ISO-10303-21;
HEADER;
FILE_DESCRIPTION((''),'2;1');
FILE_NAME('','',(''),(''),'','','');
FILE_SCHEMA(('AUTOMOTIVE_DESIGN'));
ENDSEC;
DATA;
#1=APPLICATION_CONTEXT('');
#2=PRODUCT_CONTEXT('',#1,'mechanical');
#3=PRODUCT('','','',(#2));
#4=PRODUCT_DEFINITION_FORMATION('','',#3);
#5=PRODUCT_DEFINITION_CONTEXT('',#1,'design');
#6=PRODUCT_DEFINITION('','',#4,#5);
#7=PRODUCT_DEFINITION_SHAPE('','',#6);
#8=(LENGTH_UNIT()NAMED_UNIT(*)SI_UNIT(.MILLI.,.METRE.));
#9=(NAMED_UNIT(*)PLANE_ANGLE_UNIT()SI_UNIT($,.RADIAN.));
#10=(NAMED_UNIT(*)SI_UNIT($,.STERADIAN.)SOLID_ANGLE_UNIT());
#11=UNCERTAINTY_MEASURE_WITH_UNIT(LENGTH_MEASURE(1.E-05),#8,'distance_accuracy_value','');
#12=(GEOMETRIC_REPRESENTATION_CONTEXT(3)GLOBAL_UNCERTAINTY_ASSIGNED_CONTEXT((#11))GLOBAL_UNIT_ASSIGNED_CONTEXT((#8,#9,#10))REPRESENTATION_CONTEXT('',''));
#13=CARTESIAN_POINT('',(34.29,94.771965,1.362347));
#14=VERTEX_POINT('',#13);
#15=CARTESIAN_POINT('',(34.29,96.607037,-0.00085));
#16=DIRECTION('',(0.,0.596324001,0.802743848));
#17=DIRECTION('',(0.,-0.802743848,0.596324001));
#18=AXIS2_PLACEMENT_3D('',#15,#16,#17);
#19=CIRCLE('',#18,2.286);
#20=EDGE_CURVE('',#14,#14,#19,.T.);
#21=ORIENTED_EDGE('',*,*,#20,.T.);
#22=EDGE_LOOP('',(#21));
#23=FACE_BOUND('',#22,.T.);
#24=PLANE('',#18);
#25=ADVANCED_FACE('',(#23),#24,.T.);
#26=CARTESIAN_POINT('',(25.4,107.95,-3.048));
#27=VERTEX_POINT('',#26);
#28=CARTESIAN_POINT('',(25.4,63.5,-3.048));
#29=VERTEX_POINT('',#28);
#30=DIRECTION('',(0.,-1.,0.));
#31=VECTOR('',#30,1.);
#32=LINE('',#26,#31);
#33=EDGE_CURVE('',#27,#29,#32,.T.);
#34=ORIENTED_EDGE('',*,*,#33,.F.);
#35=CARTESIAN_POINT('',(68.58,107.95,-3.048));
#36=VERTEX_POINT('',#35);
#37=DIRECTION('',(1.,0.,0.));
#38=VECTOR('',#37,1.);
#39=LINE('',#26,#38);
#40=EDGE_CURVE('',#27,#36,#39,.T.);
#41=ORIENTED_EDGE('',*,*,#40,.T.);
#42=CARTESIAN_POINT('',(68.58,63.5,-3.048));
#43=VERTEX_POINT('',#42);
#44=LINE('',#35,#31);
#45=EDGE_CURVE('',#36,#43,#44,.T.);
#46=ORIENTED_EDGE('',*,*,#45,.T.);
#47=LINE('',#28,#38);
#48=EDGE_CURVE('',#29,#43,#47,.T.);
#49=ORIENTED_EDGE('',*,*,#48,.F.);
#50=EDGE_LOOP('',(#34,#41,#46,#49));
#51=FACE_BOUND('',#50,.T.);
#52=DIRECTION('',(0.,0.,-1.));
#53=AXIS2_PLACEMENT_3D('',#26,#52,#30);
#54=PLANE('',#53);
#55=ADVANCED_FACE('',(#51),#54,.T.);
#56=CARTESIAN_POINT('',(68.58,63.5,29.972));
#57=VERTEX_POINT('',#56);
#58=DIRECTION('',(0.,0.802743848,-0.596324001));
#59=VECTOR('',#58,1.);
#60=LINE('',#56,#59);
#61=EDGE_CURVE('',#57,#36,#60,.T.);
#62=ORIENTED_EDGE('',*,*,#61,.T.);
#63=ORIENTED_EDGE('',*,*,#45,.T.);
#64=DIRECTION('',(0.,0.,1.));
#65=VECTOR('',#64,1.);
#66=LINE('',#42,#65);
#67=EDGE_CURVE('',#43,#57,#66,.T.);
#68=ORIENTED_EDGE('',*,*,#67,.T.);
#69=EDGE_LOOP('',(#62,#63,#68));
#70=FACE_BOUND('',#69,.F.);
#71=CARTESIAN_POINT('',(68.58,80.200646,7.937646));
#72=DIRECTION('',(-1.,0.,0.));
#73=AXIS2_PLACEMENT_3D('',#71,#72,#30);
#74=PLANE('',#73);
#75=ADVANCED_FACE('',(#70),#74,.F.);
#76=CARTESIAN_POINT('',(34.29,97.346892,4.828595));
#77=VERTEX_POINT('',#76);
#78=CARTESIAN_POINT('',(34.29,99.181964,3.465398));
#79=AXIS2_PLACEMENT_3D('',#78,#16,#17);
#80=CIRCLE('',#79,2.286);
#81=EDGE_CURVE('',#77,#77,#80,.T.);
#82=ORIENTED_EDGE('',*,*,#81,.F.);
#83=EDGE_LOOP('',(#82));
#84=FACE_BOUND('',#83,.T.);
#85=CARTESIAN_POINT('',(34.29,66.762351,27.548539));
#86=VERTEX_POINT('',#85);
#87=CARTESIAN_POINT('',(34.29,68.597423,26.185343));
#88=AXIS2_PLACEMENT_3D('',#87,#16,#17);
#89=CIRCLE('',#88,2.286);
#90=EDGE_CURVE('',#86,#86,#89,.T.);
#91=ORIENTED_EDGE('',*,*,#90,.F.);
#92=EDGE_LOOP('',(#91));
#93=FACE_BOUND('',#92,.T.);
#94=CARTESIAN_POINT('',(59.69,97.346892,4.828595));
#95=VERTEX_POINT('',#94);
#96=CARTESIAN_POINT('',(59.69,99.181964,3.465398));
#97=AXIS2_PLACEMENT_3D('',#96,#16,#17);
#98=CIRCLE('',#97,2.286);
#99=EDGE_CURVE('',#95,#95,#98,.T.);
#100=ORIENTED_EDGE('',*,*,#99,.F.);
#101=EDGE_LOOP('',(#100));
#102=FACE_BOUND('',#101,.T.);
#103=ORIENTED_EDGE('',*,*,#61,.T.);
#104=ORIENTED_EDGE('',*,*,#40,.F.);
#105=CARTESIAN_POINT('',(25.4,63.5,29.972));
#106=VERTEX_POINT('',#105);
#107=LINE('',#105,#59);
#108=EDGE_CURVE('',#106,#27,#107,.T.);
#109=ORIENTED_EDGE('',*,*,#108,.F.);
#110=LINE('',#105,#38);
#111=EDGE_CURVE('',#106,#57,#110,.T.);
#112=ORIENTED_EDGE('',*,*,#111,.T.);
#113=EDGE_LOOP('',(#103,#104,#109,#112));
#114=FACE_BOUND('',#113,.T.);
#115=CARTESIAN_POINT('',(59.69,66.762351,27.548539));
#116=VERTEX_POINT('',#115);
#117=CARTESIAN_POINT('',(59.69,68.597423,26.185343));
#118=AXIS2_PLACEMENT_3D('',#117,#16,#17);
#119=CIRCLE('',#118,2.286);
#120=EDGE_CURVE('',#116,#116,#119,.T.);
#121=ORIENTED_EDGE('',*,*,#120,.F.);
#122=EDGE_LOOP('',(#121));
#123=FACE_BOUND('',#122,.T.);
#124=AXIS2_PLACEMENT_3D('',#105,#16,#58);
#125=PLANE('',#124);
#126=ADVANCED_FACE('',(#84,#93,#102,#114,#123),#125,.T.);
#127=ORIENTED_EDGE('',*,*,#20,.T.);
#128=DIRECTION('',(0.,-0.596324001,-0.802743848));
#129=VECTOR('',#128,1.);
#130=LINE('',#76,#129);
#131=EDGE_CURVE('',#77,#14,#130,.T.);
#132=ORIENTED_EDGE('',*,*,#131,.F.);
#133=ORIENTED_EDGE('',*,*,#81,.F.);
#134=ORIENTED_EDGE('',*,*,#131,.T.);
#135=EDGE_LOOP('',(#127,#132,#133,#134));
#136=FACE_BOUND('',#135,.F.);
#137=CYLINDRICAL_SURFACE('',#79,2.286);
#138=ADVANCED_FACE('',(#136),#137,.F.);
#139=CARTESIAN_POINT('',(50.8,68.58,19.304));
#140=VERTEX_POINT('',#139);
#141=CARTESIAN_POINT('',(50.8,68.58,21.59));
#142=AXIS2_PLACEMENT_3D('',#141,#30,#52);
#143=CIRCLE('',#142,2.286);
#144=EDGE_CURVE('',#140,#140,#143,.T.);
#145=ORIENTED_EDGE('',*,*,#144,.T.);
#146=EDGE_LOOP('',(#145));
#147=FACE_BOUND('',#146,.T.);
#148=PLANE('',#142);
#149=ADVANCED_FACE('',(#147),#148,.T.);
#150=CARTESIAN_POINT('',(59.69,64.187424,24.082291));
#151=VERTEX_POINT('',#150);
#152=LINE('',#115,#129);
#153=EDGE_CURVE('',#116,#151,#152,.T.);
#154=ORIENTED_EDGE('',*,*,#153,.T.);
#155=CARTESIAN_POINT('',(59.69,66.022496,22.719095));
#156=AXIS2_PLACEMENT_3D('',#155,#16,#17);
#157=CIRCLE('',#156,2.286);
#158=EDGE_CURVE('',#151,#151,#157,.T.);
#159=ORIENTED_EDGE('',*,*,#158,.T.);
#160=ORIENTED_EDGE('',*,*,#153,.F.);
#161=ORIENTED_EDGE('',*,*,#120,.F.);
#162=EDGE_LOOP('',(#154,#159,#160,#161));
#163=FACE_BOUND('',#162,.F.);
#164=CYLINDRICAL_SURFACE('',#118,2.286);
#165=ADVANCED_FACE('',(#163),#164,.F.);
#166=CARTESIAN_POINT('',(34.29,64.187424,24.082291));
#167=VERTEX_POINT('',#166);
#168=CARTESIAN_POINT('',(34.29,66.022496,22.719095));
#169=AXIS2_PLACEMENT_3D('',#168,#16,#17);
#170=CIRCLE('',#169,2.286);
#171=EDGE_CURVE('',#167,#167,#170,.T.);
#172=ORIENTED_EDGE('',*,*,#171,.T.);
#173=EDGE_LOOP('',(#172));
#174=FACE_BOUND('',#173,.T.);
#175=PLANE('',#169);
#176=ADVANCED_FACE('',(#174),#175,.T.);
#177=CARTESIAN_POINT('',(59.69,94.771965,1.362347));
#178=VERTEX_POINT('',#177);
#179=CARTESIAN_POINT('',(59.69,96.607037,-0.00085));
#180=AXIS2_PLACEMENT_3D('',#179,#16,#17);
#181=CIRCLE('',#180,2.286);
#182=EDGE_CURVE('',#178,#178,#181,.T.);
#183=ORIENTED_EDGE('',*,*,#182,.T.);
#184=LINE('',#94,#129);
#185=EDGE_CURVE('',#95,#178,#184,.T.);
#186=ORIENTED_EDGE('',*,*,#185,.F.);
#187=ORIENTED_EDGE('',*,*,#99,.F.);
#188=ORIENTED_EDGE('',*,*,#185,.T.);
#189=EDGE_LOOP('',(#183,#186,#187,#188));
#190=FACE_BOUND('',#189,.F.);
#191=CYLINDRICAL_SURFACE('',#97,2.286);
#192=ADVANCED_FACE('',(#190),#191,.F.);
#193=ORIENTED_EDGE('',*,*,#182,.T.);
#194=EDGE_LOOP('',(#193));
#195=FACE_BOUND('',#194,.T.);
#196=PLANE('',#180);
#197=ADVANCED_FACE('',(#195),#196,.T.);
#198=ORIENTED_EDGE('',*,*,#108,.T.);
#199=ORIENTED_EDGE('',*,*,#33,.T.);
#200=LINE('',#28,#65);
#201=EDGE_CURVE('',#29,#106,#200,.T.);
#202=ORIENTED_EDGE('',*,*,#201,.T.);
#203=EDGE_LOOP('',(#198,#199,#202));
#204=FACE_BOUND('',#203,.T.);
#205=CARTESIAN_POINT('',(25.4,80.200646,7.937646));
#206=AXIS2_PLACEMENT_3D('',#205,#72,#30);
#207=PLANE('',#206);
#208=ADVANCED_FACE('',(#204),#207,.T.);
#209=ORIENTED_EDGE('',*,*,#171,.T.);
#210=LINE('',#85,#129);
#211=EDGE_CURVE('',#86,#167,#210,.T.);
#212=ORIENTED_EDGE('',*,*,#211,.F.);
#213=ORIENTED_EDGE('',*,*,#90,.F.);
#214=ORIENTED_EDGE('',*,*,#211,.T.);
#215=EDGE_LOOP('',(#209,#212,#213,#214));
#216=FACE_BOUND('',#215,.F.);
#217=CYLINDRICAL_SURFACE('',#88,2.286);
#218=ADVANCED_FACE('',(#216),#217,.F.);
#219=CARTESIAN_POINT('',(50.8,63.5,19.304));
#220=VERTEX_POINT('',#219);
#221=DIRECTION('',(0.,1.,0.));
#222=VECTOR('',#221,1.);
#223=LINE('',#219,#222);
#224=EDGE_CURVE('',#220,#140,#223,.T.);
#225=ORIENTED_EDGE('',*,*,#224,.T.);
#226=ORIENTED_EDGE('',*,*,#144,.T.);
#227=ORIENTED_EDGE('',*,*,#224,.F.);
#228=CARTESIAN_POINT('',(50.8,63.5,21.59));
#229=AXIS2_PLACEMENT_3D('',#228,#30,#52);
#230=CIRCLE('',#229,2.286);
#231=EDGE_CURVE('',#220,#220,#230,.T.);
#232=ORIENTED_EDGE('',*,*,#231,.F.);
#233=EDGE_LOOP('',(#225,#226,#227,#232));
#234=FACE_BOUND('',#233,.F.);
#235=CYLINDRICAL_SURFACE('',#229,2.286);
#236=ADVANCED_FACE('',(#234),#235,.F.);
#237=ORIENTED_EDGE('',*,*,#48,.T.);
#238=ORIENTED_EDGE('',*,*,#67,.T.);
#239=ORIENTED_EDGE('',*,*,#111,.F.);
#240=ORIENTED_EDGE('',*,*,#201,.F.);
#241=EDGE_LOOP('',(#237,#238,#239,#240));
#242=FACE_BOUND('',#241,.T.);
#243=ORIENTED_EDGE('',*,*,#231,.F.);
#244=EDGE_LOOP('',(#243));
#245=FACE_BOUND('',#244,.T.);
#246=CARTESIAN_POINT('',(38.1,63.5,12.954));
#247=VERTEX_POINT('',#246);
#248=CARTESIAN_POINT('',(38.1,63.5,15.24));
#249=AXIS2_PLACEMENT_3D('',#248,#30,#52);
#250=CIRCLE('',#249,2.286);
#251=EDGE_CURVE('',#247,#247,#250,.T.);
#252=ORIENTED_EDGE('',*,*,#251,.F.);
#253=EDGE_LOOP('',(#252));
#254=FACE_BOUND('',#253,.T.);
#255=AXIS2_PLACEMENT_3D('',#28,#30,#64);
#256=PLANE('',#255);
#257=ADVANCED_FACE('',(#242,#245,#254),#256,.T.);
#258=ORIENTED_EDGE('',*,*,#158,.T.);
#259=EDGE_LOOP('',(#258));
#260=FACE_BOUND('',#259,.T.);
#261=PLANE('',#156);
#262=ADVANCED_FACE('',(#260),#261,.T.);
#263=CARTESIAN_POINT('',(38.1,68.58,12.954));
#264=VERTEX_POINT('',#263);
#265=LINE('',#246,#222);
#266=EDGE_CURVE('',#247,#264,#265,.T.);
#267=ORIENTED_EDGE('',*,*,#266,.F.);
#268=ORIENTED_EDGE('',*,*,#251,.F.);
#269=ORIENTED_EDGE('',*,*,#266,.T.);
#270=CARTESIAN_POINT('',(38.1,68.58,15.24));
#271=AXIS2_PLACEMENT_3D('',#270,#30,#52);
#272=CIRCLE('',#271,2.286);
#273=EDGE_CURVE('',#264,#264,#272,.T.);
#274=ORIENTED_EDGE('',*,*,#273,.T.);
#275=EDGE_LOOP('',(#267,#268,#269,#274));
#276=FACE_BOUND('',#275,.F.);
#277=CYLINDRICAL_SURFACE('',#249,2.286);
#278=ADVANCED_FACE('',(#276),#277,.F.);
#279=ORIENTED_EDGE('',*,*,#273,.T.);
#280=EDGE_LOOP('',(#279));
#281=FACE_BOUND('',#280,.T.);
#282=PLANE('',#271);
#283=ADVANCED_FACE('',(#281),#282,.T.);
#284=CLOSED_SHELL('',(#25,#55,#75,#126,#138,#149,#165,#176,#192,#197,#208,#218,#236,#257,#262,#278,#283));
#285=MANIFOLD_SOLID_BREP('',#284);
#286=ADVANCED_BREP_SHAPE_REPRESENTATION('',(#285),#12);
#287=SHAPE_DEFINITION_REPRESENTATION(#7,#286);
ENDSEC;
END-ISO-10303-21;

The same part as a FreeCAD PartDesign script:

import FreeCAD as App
import Part
import Sketcher
from FreeCAD import Vector
Q = App.Units.Quantity

doc = App.newDocument("Part")
body = doc.addObject("PartDesign::Body", "Body")

sketch1 = body.newObject("Sketcher::SketchObject", "Sketch")
sketch1.AttachmentSupport = (doc.getObject("YZ_Plane"), [""])
sketch1.MapMode = "FlatFace"
sketch1.addGeometry([
    Part.LineSegment(Vector(0, 33.02, 0), Vector(0, 0, 0)),
    Part.LineSegment(Vector(0, 0, 0), Vector(44.45, 0, 0)),
    Part.LineSegment(Vector(44.45, 0, 0), Vector(0, 33.02, 0)),
], False)
sketch1.addConstraint([
    Sketcher.Constraint("Coincident", 0, 2, 1, 1),
    Sketcher.Constraint("Coincident", 1, 2, 2, 1),
    Sketcher.Constraint("Coincident", 2, 2, 0, 1),
    Sketcher.Constraint("Vertical", 0),
    Sketcher.Constraint("Horizontal", 1),
    Sketcher.Constraint("Coincident", 0, 2, -1, 1),
    Sketcher.Constraint("DistanceY", 0, 2, 0, 1, Q("1.3 in")),
    Sketcher.Constraint("DistanceX", 1, 1, 1, 2, Q("1.75 in")),
])
pad1 = body.newObject("PartDesign::Pad", "Pad")
pad1.Profile = sketch1
pad1.Length = Q("1.7 in")

sketch2 = body.newObject("Sketcher::SketchObject", "Sketch001")
sketch2.AttachmentSupport = (doc.getObject("XZ_Plane"), [""])
sketch2.MapMode = "FlatFace"
sketch2.addGeometry([
    Part.Circle(Vector(12.7, 18.288, 0), Vector(0, 0, 1), 2.286),
    Part.Circle(Vector(25.4, 24.638, 0), Vector(0, 0, 1), 2.286),
], False)
sketch2.addConstraint([
    Sketcher.Constraint("Equal", 0, 1),
    Sketcher.Constraint("Diameter", 0, Q("0.18 in")),
    Sketcher.Constraint("DistanceX", -1, 1, 1, 3, Q("1 in")),
    Sketcher.Constraint("DistanceX", -1, 1, 0, 3, Q("0.5 in")),
    Sketcher.Constraint("DistanceY", -1, 1, 0, 3, Q("0.72 in")),
    Sketcher.Constraint("DistanceY", -1, 1, 1, 3, Q("0.97 in")),
])
pocket1 = body.newObject("PartDesign::Pocket", "Pocket")
pocket1.Profile = sketch2
pocket1.Length = Q("0.2 in")

sketch3 = body.newObject("Sketcher::SketchObject", "Sketch002")
sketch3.Placement = App.Placement(Vector(0, 15.806523, 21.278012), App.Rotation(Vector(0, -0.802743848, 0.596324001), Vector(1, 0, 0), Vector(0, 0.596324001, 0.802743848), "ZXY"))
sketch3.addGeometry([
    Part.Circle(Vector(13.340619, 34.29, 0), Vector(0, 0, 1), 2.286),
    Part.Circle(Vector(13.340619, 8.89, 0), Vector(0, 0, 1), 2.286),
    Part.Circle(Vector(-24.759381, 34.29, 0), Vector(0, 0, 1), 2.286),
    Part.Circle(Vector(-24.759381, 8.89, 0), Vector(0, 0, 1), 2.286),
], False)
sketch3.addConstraint([
    Sketcher.Constraint("Equal", 0, 1),
    Sketcher.Constraint("Equal", 1, 2),
    Sketcher.Constraint("Equal", 2, 3),
    Sketcher.Constraint("Horizontal", 0, 3, 2, 3),
    Sketcher.Constraint("Horizontal", 1, 3, 3, 3),
    Sketcher.Constraint("Vertical", 0, 3, 1, 3),
    Sketcher.Constraint("Vertical", 2, 3, 3, 3),
    Sketcher.Constraint("Diameter", 0, Q("0.18 in")),
    Sketcher.Constraint("DistanceY", 1, 3, 0, 3, Q("1 in")),
    Sketcher.Constraint("DistanceX", 2, 3, 0, 3, Q("1.5 in")),
    Sketcher.Constraint("DistanceY", -1, 1, 0, 3, Q("1.35 in")),
    Sketcher.Constraint("DistanceX", -1, 1, 0, 3, 13.340619),
])
pocket2 = body.newObject("PartDesign::Pocket", "Pocket001")
pocket2.Profile = sketch3
pocket2.Length = Q("0.17 in")
body2 = doc.addObject("PartDesign::Body", "Body001")
doc.recompute()

body.Placement = App.Placement(Vector(25.4, 63.5, -3.048), App.Rotation(Vector(0, 0, 1), 0))
boolean = body2.newObject("PartDesign::Boolean", "Boolean")
boolean.Type = "Fuse"
boolean.addObjects([body])

doc.recompute()
